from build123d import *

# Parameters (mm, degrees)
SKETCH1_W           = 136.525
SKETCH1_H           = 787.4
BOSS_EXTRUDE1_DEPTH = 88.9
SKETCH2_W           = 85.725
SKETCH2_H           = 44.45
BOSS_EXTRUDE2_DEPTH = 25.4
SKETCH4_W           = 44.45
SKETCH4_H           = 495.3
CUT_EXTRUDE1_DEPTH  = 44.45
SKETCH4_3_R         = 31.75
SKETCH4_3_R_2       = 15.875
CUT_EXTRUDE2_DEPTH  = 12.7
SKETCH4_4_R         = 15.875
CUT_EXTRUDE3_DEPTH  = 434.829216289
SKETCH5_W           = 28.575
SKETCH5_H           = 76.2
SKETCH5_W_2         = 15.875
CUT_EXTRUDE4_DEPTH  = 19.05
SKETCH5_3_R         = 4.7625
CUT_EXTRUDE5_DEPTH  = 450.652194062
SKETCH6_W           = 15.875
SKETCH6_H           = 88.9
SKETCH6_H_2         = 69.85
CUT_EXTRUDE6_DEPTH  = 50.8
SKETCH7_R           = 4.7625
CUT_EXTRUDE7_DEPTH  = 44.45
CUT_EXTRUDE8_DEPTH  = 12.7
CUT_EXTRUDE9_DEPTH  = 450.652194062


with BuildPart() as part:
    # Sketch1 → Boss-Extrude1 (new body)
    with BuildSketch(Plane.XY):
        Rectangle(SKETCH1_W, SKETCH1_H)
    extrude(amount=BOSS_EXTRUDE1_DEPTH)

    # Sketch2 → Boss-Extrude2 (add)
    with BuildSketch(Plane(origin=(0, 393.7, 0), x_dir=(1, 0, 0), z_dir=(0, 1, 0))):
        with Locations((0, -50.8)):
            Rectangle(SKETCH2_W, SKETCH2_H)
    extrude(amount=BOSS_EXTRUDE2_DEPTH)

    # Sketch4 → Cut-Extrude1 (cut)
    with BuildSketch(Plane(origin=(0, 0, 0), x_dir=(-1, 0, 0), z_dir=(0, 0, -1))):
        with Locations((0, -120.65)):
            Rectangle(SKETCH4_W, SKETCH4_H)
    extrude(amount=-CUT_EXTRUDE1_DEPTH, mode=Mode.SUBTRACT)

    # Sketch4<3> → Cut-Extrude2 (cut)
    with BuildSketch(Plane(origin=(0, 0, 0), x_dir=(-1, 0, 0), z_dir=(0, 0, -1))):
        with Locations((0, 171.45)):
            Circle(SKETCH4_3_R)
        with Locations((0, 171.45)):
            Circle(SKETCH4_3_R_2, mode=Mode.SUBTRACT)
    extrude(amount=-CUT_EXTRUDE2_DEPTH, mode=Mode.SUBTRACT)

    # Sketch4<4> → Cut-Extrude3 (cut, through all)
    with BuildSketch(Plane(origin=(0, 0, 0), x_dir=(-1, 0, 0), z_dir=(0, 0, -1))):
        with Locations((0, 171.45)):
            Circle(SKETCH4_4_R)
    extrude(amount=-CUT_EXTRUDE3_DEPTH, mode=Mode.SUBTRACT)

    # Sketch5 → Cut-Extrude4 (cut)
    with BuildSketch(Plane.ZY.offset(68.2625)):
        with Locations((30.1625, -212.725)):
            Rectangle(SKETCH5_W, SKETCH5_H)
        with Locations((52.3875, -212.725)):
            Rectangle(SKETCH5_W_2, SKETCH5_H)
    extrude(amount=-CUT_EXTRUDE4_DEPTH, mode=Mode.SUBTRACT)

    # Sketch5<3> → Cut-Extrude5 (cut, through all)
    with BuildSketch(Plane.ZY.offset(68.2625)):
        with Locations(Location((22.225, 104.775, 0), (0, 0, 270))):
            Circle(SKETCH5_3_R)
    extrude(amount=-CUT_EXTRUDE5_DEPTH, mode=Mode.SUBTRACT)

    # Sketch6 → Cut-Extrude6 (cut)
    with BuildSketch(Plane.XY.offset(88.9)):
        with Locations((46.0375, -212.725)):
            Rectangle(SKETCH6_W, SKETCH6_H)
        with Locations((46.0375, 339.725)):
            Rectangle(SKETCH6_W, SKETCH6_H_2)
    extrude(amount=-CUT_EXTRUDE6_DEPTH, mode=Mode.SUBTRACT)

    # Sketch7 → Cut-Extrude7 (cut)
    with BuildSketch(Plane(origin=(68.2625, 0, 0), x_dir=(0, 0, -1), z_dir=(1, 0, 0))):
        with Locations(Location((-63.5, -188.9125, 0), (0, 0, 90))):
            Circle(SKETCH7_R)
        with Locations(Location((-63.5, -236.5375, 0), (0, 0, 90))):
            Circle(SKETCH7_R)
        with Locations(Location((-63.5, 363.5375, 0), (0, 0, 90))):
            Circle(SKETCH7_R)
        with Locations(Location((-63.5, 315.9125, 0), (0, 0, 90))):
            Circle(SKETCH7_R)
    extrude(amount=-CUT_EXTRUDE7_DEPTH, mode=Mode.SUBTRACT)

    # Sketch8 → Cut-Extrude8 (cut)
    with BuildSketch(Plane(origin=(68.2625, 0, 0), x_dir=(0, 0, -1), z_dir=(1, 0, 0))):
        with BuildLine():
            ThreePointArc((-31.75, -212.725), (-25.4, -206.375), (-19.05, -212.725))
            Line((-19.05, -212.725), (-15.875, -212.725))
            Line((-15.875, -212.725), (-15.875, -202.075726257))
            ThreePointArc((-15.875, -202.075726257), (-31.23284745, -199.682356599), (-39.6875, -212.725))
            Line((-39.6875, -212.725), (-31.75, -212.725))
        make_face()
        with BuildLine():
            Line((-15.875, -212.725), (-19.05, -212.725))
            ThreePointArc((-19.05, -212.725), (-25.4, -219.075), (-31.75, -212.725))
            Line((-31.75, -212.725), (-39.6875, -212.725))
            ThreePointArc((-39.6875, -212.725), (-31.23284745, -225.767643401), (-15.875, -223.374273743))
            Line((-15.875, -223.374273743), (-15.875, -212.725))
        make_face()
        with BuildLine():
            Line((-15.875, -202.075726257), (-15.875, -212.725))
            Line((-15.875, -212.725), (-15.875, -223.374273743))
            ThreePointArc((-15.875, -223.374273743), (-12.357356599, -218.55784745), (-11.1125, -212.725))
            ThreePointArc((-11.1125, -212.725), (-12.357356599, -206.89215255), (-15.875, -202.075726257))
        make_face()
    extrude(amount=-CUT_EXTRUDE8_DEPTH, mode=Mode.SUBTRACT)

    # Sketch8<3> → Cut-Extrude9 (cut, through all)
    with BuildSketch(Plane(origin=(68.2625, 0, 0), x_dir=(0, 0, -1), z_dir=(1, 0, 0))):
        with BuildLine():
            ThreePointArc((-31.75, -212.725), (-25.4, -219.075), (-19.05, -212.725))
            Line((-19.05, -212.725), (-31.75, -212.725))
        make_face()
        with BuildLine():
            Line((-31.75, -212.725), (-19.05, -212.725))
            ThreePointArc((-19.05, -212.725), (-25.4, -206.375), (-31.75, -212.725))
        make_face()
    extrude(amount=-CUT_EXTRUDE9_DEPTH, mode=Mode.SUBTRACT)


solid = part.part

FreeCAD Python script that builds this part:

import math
import FreeCAD as App
import Part
import Sketcher
Q = App.Units.Quantity


def add_polygon(sketch, points):
    """Adds a closed chain of lines whose ends are joined by coincident constraints."""
    first, n = sketch.GeometryCount, len(points)
    for a, b in zip(points, points[1:] + points[:1]):
        sketch.addGeometry(Part.LineSegment(App.Vector(*a, 0), App.Vector(*b, 0)), False)
    for i in range(n):
        sketch.addConstraint(Sketcher.Constraint("Coincident", first + i, 2, first + (i + 1) % n, 1))

doc = App.newDocument("Part")
body = doc.addObject("PartDesign::Body", "Body")

sketch1 = body.newObject("Sketcher::SketchObject", "Sketch")
sketch1.AttachmentSupport = (doc.getObject("XY_Plane"), [""])
sketch1.MapMode = "FlatFace"
add_polygon(sketch1, [(-68, 394), (-68, -394), (68, -394), (68, 394)])
sketch1.addConstraint([
    Sketcher.Constraint("Vertical", 0),
    Sketcher.Constraint("Horizontal", 1),
    Sketcher.Constraint("Vertical", 2),
    Sketcher.Constraint("Horizontal", 3),
    Sketcher.Constraint("Symmetric", 0, 2, 2, 2, -1, 1),
    Sketcher.Constraint("DistanceY", 0, 2, 0, 1, Q("31 in")),
    Sketcher.Constraint("DistanceX", 1, 1, 1, 2, Q("5.375 in")),
])
pad1 = body.newObject("PartDesign::Pad", "Pad")
pad1.Profile = sketch1
pad1.Length = Q("3.5 in")

sketch2 = body.newObject("Sketcher::SketchObject", "Sketch001")
sketch2.AttachmentSupport = (doc.getObject("XZ_Plane"), [""])
sketch2.MapMode = "FlatFace"
sketch2.AttachmentOffset = App.Placement(App.Vector(0, 0, -15.5 * 25.4), App.Rotation())
add_polygon(sketch2, [(-43, 29), (-43, 73), (43, 73), (43, 29)])
sketch2.addConstraint([
    Sketcher.Constraint("Vertical", 0),
    Sketcher.Constraint("Horizontal", 1),
    Sketcher.Constraint("Vertical", 2),
    Sketcher.Constraint("Horizontal", 3),
    Sketcher.Constraint("DistanceY", 0, 1, 0, 2, Q("1.75 in")),
    Sketcher.Constraint("DistanceX", 1, 1, 1, 2, Q("3.375 in")),
    Sketcher.Constraint("DistanceX", 0, 2, -1, 1, Q("1.6875 in")),
    Sketcher.Constraint("DistanceY", -1, 1, 0, 2, Q("2.875 in")),
])
pad2 = body.newObject("PartDesign::Pad", "Pad001")
pad2.Profile = sketch2
pad2.Length = Q("1 in")
pad2.Reversed = True

sketch3 = body.newObject("Sketcher::SketchObject", "Sketch002")
sketch3.AttachmentSupport = (doc.getObject("XY_Plane"), [""])
sketch3.MapMode = "FlatFace"
add_polygon(sketch3, [(22, 127), (22, -368), (-22, -368), (-22, 127)])
sketch3.addConstraint([
    Sketcher.Constraint("Vertical", 0),
    Sketcher.Constraint("Horizontal", 1),
    Sketcher.Constraint("Vertical", 2),
    Sketcher.Constraint("Horizontal", 3),
    Sketcher.Constraint("DistanceY", 0, 2, 0, 1, Q("19.5 in")),
    Sketcher.Constraint("DistanceY", -1, 1, 2, 2, Q("5 in")),
    Sketcher.Constraint("DistanceX", 1, 2, 1, 1, Q("1.75 in")),
    Sketcher.Constraint("DistanceX", -1, 1, 0, 2, Q("0.875 in")),
])
pocket1 = body.newObject("PartDesign::Pocket", "Pocket")
pocket1.Profile = sketch3
pocket1.Length = Q("1.75 in")
pocket1.Reversed = True

sketch4 = body.newObject("Sketcher::SketchObject", "Sketch003")
sketch4.AttachmentSupport = (doc.getObject("XY_Plane"), [""])
sketch4.MapMode = "FlatFace"
sketch4.addGeometry([
    Part.Circle(App.Vector(0, 171, 0), App.Vector(0, 0, 1), 32),
    Part.Circle(App.Vector(0, 171, 0), App.Vector(0, 0, 1), 16),
], False)
sketch4.addConstraint([
    Sketcher.Constraint("Coincident", 1, 3, 0, 3),
    Sketcher.Constraint("PointOnObject", 0, 3, -2),
    Sketcher.Constraint("Diameter", 0, Q("2.5 in")),
    Sketcher.Constraint("Diameter", 1, Q("1.25 in")),
    Sketcher.Constraint("DistanceY", -1, 1, 0, 3, Q("6.75 in")),
])
pocket2 = body.newObject("PartDesign::Pocket", "Pocket001")
pocket2.Profile = sketch4
pocket2.Length = Q("0.5 in")
pocket2.Reversed = True

sketch5 = body.newObject("Sketcher::SketchObject", "Sketch004")
sketch5.AttachmentSupport = (doc.getObject("XY_Plane"), [""])
sketch5.MapMode = "FlatFace"
sketch5.addGeometry(Part.Circle(App.Vector(0, 171, 0), App.Vector(0, 0, 1), 16), False)
sketch5.addConstraint([
    Sketcher.Constraint("PointOnObject", 0, 3, -2),
    Sketcher.Constraint("Diameter", 0, Q("1.25 in")),
    Sketcher.Constraint("DistanceY", -1, 1, 0, 3, Q("6.75 in")),
])
pocket3 = body.newObject("PartDesign::Pocket", "Pocket002")
pocket3.Profile = sketch5
pocket3.Type = "ThroughAll"
pocket3.Reversed = True

sketch6 = body.newObject("Sketcher::SketchObject", "Sketch005")
sketch6.AttachmentSupport = (doc.getObject("YZ_Plane"), [""])
sketch6.MapMode = "FlatFace"
sketch6.AttachmentOffset = App.Placement(App.Vector(0, 0, -2.6875 * 25.4), App.Rotation())
add_polygon(sketch6, [(-175, 16), (-251, 16), (-251, 60), (-175, 60)])
sketch6.addConstraint([
    Sketcher.Constraint("Horizontal", 0),
    Sketcher.Constraint("Vertical", 1),
    Sketcher.Constraint("Horizontal", 2),
    Sketcher.Constraint("Vertical", 3),
    Sketcher.Constraint("DistanceX", 0, 2, 0, 1, Q("3 in")),
    Sketcher.Constraint("DistanceY", 1, 1, 1, 2, Q("1.75 in")),
    Sketcher.Constraint("DistanceX", 0, 2, -1, 1, Q("9.875 in")),
    Sketcher.Constraint("DistanceY", -1, 1, 0, 2, Q("0.625 in")),
])
pocket4 = body.newObject("PartDesign::Pocket", "Pocket003")
pocket4.Profile = sketch6
pocket4.Length = Q("0.75 in")
pocket4.Reversed = True

sketch7 = body.newObject("Sketcher::SketchObject", "Sketch006")
sketch7.AttachmentSupport = (doc.getObject("YZ_Plane"), [""])
sketch7.MapMode = "FlatFace"
sketch7.AttachmentOffset = App.Placement(App.Vector(0, 0, -2.6875 * 25.4), App.Rotation())
sketch7.addGeometry(Part.Circle(App.Vector(104.8, 22.2, 0), App.Vector(0, 0, 1), 4.8), False)
sketch7.addConstraint([
    Sketcher.Constraint("Diameter", 0, Q("0.375 in")),
    Sketcher.Constraint("DistanceX", -1, 1, 0, 3, Q("4.125 in")),
    Sketcher.Constraint("DistanceY", -1, 1, 0, 3, Q("0.875 in")),
])
pocket5 = body.newObject("PartDesign::Pocket", "Pocket004")
pocket5.Profile = sketch7
pocket5.Type = "ThroughAll"
pocket5.Reversed = True

sketch8 = body.newObject("Sketcher::SketchObject", "Sketch007")
sketch8.AttachmentSupport = (doc.getObject("XY_Plane"), [""])
sketch8.MapMode = "FlatFace"
sketch8.AttachmentOffset = App.Placement(App.Vector(0, 0, 3.5 * 25.4), App.Rotation())
add_polygon(sketch8, [(38, -168), (38, -257), (54, -257), (54, -168)])
add_polygon(sketch8, [(38, 375), (38, 305), (54, 305), (54, 375)])
sketch8.addConstraint([
    Sketcher.Constraint("Vertical", 0),
    Sketcher.Constraint("Horizontal", 1),
    Sketcher.Constraint("Vertical", 2),
    Sketcher.Constraint("Horizontal", 3),
    Sketcher.Constraint("Vertical", 4),
    Sketcher.Constraint("Horizontal", 5),
    Sketcher.Constraint("Vertical", 6),
    Sketcher.Constraint("Horizontal", 7),
    Sketcher.Constraint("Vertical", 3, 2, 4, 2),
    Sketcher.Constraint("Vertical", 2, 2, 5, 2),
    Sketcher.Constraint("DistanceY", 0, 2, 0, 1, Q("3.5 in")),
    Sketcher.Constraint("DistanceY", -1, 1, 4, 2, Q("12 in")),
    Sketcher.Constraint("DistanceY", 4, 2, 4, 1, Q("2.75 in")),
    Sketcher.Constraint("DistanceX", -1, 1, 0, 2, Q("1.5 in")),
    Sketcher.Constraint("DistanceX", 1, 1, 1, 2, Q("0.625 in")),
    Sketcher.Constraint("DistanceY", 0, 2, -1, 1, Q("10.125 in")),
])
pocket6 = body.newObject("PartDesign::Pocket", "Pocket005")
pocket6.Profile = sketch8
pocket6.Length = Q("2 in")

sketch9 = body.newObject("Sketcher::SketchObject", "Sketch008")
sketch9.AttachmentSupport = (doc.getObject("YZ_Plane"), [""])
sketch9.MapMode = "FlatFace"
sketch9.AttachmentOffset = App.Placement(App.Vector(0, 0, 2.6875 * 25.4), App.Rotation())
sketch9.addGeometry([
    Part.Circle(App.Vector(-188.9, 63.5, 0), App.Vector(0, 0, 1), 4.8),
    Part.Circle(App.Vector(-236.5, 63.5, 0), App.Vector(0, 0, 1), 4.8),
    Part.Circle(App.Vector(363.5, 63.5, 0), App.Vector(0, 0, 1), 4.8),
    Part.Circle(App.Vector(315.9, 63.5, 0), App.Vector(0, 0, 1), 4.8),
], False)
sketch9.addConstraint([
    Sketcher.Constraint("Equal", 0, 1),
    Sketcher.Constraint("Equal", 1, 2),
    Sketcher.Constraint("Equal", 2, 3),
    Sketcher.Constraint("Horizontal", 0, 3, 1, 3),
    Sketcher.Constraint("Horizontal", 1, 3, 2, 3),
    Sketcher.Constraint("Horizontal", 2, 3, 3, 3),
    Sketcher.Constraint("Diameter", 0, Q("0.375 in")),
    Sketcher.Constraint("DistanceY", -1, 1, 0, 3, Q("2.5 in")),
    Sketcher.Constraint("DistanceX", 0, 3, 2, 3, Q("21.75 in")),
    Sketcher.Constraint("DistanceX", 1, 3, 3, 3, Q("21.75 in")),
    Sketcher.Constraint("DistanceX", 0, 3, -1, 1, Q("7.4375 in")),
    Sketcher.Constraint("DistanceX", 1, 3, -1, 1, Q("9.3125 in")),
])
pocket7 = body.newObject("PartDesign::Pocket", "Pocket006")
pocket7.Profile = sketch9
pocket7.Length = Q("1.75 in")

sketch10 = body.newObject("Sketcher::SketchObject", "Sketch009")
sketch10.AttachmentSupport = (doc.getObject("YZ_Plane"), [""])
sketch10.MapMode = "FlatFace"
sketch10.AttachmentOffset = App.Placement(App.Vector(0, 0, 2.6875 * 25.4), App.Rotation())
sketch10.addGeometry([
    Part.ArcOfCircle(Part.Circle(App.Vector(-213, 25, 0), App.Vector(0, 0, 1), 14), math.radians(-138), math.radians(-90)),
    Part.ArcOfCircle(Part.Circle(App.Vector(-213, 25, 0), App.Vector(0, 0, 1), 14), math.radians(-90), math.radians(-42)),
    Part.ArcOfCircle(Part.Circle(App.Vector(-213, 25, 0), App.Vector(0, 0, 1), 14), math.radians(-42), math.radians(90)),
    Part.ArcOfCircle(Part.Circle(App.Vector(-213, 25, 0), App.Vector(0, 0, 1), 14), math.radians(90), math.radians(222)),
    Part.Circle(App.Vector(-213, 25, 0), App.Vector(0, 0, 1), 6),
], False)
sketch10.addConstraint([
    Sketcher.Constraint("Tangent", 0, 2, 1, 1),
    Sketcher.Constraint("Tangent", 1, 2, 2, 1),
    Sketcher.Constraint("Tangent", 2, 2, 3, 1),
    Sketcher.Constraint("Tangent", 3, 2, 0, 1),
    Sketcher.Constraint("Coincident", 4, 3, 0, 3),
    Sketcher.Constraint("Equal", 0, 1),
    Sketcher.Constraint("Horizontal", 1, 2, 3, 2),
    Sketcher.Constraint("Vertical", 4, 3, 0, 2),
    Sketcher.Constraint("Vertical", 0, 2, 2, 2),
    Sketcher.Constraint("Diameter", 4, Q("0.5 in")),
    Sketcher.Constraint("DistanceY", -1, 1, 0, 3, Q("1 in")),
    Sketcher.Constraint("Radius", 0, Q("0.5625 in")),
    Sketcher.Constraint("DistanceX", 0, 3, -1, 1, Q("8.375 in")),
    Sketcher.Constraint("DistanceY", -1, 1, 1, 2, Q("0.625 in")),
])
pocket8 = body.newObject("PartDesign::Pocket", "Pocket007")
pocket8.Profile = sketch10
pocket8.Length = Q("0.5 in")

sketch11 = body.newObject("Sketcher::SketchObject", "Sketch010")
sketch11.AttachmentSupport = (doc.getObject("YZ_Plane"), [""])
sketch11.MapMode = "FlatFace"
sketch11.AttachmentOffset = App.Placement(App.Vector(0, 0, 2.6875 * 25.4), App.Rotation())
sketch11.addGeometry(Part.Circle(App.Vector(-213, 25, 0), App.Vector(0, 0, 1), 6), False)
sketch11.addConstraint([
    Sketcher.Constraint("Diameter", 0, Q("0.5 in")),
    Sketcher.Constraint("DistanceY", -1, 1, 0, 3, Q("1 in")),
    Sketcher.Constraint("DistanceX", 0, 3, -1, 1, Q("8.375 in")),
])
pocket9 = body.newObject("PartDesign::Pocket", "Pocket008")
pocket9.Profile = sketch11
pocket9.Type = "ThroughAll"

doc.recompute()
